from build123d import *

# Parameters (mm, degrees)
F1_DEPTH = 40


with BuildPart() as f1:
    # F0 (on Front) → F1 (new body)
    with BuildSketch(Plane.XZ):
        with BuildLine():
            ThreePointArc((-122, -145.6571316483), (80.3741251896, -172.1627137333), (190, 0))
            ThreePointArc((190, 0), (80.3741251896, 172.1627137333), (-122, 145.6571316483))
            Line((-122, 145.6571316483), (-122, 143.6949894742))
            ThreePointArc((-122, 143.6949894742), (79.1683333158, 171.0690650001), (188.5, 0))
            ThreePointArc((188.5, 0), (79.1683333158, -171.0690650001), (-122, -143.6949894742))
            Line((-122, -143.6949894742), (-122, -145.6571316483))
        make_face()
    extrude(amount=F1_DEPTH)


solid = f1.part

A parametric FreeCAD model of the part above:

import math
import FreeCAD as App
import Part
import Sketcher

V = App.Vector
Q = App.Units.Quantity

doc = App.newDocument("Part")
body = doc.addObject("PartDesign::Body", "Body")

# Sketch on XZ plane
sketch1 = doc.addObject("Sketcher::SketchObject", "Sketch")
body.addObject(sketch1)
sketch1.AttachmentSupport = (doc.XZ_Plane, [""])
sketch1.MapMode = "FlatFace"
sketch1.addGeometry([
    Part.ArcOfCircle(Part.Circle(V(0, 0, 0), V(0, 0, 1), 190), math.radians(-129.948983), math.radians(129.948983)),
    Part.LineSegment(V(-122, 145.657132, 0), V(-122, 143.694989, 0)),
    Part.ArcOfCircle(Part.Circle(V(0, 0, 0), V(0, 0, 1), 188.5), math.radians(-130.331941), math.radians(130.331941)),
    Part.LineSegment(V(-122, -143.694989, 0), V(-122, -145.657132, 0)),
], False)
sketch1.addConstraint([
    Sketcher.Constraint("Coincident", 0, 2, 1, 1),
    Sketcher.Constraint("Coincident", 1, 2, 2, 2),
    Sketcher.Constraint("Coincident", 2, 1, 3, 1),
    Sketcher.Constraint("Coincident", 3, 2, 0, 1),
    Sketcher.Constraint("Vertical", 1),
    Sketcher.Constraint("Vertical", 3),
    Sketcher.Constraint("Coincident", 0, 3, -1, 1),
    Sketcher.Constraint("Coincident", 2, 3, -1, 1),
    Sketcher.Constraint("Vertical", 1, 2, 2, 1),
    Sketcher.Constraint("Radius", 0, Q("190 mm")),
    Sketcher.Constraint("Radius", 2, Q("188.5 mm")),
    Sketcher.Constraint("DistanceX", 0, 2, -1, 1, Q("122 mm")),
])
pad1 = doc.addObject("PartDesign::Pad", "Pad")
body.addObject(pad1)
pad1.Profile = sketch1
pad1.Length = 40

doc.recompute()
